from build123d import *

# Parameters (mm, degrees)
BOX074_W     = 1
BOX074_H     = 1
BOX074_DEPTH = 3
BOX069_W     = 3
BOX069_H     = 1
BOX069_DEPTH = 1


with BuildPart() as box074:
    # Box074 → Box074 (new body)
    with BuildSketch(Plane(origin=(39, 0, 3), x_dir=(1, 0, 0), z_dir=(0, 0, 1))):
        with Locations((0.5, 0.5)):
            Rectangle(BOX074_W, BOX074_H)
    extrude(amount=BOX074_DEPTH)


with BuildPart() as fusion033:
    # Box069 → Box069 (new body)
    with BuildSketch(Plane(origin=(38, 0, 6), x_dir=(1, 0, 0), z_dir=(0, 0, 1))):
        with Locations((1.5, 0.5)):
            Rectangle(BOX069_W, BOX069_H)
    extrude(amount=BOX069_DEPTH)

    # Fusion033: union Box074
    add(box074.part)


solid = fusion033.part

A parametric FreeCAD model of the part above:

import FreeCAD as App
import Part
import Sketcher
from FreeCAD import Vector
Q = App.Units.Quantity

doc = App.newDocument("Part")
body = doc.addObject("PartDesign::Body", "Body")

# Sketch on XY plane
sketch1 = body.newObject("Sketcher::SketchObject", "Sketch")
sketch1.AttachmentSupport = (doc.getObject("XY_Plane"), [""])
sketch1.MapMode = "FlatFace"
sketch1.AttachmentOffset = App.Placement(Vector(0, 0, 3), App.Rotation())
sketch1.addGeometry([
    Part.LineSegment(Vector(39, 1, 0), Vector(39, 0, 0)),
    Part.LineSegment(Vector(39, 0, 0), Vector(40, 0, 0)),
    Part.LineSegment(Vector(40, 0, 0), Vector(40, 1, 0)),
    Part.LineSegment(Vector(40, 1, 0), Vector(39, 1, 0)),
], False)
sketch1.addConstraint([
    Sketcher.Constraint("Coincident", 0, 2, 1, 1),
    Sketcher.Constraint("Coincident", 1, 2, 2, 1),
    Sketcher.Constraint("Coincident", 2, 2, 3, 1),
    Sketcher.Constraint("Coincident", 3, 2, 0, 1),
    Sketcher.Constraint("Vertical", 0),
    Sketcher.Constraint("Horizontal", 1),
    Sketcher.Constraint("Vertical", 2),
    Sketcher.Constraint("Horizontal", 3),
    Sketcher.Constraint("PointOnObject", 0, 2, -1),
    Sketcher.Constraint("Equal", 3, 0),
    Sketcher.Constraint("DistanceX", 1, 1, 1, 2, Q("1 mm")),
    Sketcher.Constraint("DistanceX", -1, 1, 0, 2, Q("39 mm")),
])
pad1 = body.newObject("PartDesign::Pad", "Pad")
pad1.Profile = sketch1
pad1.Length = 3
body2 = doc.addObject("PartDesign::Body", "Body001")

# Sketch on XY plane
sketch2 = body2.newObject("Sketcher::SketchObject", "Sketch001")
sketch2.AttachmentSupport = (doc.getObject("XY_Plane001"), [""])
sketch2.MapMode = "FlatFace"
sketch2.AttachmentOffset = App.Placement(Vector(0, 0, 6), App.Rotation())
sketch2.addGeometry([
    Part.LineSegment(Vector(38, 1, 0), Vector(38, 0, 0)),
    Part.LineSegment(Vector(38, 0, 0), Vector(41, 0, 0)),
    Part.LineSegment(Vector(41, 0, 0), Vector(41, 1, 0)),
    Part.LineSegment(Vector(41, 1, 0), Vector(38, 1, 0)),
], False)
sketch2.addConstraint([
    Sketcher.Constraint("Coincident", 0, 2, 1, 1),
    Sketcher.Constraint("Coincident", 1, 2, 2, 1),
    Sketcher.Constraint("Coincident", 2, 2, 3, 1),
    Sketcher.Constraint("Coincident", 3, 2, 0, 1),
    Sketcher.Constraint("Vertical", 0),
    Sketcher.Constraint("Horizontal", 1),
    Sketcher.Constraint("Vertical", 2),
    Sketcher.Constraint("Horizontal", 3),
    Sketcher.Constraint("PointOnObject", 0, 2, -1),
    Sketcher.Constraint("DistanceX", 1, 1, 1, 2, Q("3 mm")),
    Sketcher.Constraint("DistanceY", 0, 2, 0, 1, Q("1 mm")),
    Sketcher.Constraint("DistanceX", -1, 1, 0, 2, Q("38 mm")),
])
pad2 = body2.newObject("PartDesign::Pad", "Pad001")
pad2.Profile = sketch2
pad2.Length = 1
doc.recompute()

boolean = body2.newObject("PartDesign::Boolean", "Boolean")
boolean.Type = "Fuse"
boolean.addObjects([body])

doc.recompute()
